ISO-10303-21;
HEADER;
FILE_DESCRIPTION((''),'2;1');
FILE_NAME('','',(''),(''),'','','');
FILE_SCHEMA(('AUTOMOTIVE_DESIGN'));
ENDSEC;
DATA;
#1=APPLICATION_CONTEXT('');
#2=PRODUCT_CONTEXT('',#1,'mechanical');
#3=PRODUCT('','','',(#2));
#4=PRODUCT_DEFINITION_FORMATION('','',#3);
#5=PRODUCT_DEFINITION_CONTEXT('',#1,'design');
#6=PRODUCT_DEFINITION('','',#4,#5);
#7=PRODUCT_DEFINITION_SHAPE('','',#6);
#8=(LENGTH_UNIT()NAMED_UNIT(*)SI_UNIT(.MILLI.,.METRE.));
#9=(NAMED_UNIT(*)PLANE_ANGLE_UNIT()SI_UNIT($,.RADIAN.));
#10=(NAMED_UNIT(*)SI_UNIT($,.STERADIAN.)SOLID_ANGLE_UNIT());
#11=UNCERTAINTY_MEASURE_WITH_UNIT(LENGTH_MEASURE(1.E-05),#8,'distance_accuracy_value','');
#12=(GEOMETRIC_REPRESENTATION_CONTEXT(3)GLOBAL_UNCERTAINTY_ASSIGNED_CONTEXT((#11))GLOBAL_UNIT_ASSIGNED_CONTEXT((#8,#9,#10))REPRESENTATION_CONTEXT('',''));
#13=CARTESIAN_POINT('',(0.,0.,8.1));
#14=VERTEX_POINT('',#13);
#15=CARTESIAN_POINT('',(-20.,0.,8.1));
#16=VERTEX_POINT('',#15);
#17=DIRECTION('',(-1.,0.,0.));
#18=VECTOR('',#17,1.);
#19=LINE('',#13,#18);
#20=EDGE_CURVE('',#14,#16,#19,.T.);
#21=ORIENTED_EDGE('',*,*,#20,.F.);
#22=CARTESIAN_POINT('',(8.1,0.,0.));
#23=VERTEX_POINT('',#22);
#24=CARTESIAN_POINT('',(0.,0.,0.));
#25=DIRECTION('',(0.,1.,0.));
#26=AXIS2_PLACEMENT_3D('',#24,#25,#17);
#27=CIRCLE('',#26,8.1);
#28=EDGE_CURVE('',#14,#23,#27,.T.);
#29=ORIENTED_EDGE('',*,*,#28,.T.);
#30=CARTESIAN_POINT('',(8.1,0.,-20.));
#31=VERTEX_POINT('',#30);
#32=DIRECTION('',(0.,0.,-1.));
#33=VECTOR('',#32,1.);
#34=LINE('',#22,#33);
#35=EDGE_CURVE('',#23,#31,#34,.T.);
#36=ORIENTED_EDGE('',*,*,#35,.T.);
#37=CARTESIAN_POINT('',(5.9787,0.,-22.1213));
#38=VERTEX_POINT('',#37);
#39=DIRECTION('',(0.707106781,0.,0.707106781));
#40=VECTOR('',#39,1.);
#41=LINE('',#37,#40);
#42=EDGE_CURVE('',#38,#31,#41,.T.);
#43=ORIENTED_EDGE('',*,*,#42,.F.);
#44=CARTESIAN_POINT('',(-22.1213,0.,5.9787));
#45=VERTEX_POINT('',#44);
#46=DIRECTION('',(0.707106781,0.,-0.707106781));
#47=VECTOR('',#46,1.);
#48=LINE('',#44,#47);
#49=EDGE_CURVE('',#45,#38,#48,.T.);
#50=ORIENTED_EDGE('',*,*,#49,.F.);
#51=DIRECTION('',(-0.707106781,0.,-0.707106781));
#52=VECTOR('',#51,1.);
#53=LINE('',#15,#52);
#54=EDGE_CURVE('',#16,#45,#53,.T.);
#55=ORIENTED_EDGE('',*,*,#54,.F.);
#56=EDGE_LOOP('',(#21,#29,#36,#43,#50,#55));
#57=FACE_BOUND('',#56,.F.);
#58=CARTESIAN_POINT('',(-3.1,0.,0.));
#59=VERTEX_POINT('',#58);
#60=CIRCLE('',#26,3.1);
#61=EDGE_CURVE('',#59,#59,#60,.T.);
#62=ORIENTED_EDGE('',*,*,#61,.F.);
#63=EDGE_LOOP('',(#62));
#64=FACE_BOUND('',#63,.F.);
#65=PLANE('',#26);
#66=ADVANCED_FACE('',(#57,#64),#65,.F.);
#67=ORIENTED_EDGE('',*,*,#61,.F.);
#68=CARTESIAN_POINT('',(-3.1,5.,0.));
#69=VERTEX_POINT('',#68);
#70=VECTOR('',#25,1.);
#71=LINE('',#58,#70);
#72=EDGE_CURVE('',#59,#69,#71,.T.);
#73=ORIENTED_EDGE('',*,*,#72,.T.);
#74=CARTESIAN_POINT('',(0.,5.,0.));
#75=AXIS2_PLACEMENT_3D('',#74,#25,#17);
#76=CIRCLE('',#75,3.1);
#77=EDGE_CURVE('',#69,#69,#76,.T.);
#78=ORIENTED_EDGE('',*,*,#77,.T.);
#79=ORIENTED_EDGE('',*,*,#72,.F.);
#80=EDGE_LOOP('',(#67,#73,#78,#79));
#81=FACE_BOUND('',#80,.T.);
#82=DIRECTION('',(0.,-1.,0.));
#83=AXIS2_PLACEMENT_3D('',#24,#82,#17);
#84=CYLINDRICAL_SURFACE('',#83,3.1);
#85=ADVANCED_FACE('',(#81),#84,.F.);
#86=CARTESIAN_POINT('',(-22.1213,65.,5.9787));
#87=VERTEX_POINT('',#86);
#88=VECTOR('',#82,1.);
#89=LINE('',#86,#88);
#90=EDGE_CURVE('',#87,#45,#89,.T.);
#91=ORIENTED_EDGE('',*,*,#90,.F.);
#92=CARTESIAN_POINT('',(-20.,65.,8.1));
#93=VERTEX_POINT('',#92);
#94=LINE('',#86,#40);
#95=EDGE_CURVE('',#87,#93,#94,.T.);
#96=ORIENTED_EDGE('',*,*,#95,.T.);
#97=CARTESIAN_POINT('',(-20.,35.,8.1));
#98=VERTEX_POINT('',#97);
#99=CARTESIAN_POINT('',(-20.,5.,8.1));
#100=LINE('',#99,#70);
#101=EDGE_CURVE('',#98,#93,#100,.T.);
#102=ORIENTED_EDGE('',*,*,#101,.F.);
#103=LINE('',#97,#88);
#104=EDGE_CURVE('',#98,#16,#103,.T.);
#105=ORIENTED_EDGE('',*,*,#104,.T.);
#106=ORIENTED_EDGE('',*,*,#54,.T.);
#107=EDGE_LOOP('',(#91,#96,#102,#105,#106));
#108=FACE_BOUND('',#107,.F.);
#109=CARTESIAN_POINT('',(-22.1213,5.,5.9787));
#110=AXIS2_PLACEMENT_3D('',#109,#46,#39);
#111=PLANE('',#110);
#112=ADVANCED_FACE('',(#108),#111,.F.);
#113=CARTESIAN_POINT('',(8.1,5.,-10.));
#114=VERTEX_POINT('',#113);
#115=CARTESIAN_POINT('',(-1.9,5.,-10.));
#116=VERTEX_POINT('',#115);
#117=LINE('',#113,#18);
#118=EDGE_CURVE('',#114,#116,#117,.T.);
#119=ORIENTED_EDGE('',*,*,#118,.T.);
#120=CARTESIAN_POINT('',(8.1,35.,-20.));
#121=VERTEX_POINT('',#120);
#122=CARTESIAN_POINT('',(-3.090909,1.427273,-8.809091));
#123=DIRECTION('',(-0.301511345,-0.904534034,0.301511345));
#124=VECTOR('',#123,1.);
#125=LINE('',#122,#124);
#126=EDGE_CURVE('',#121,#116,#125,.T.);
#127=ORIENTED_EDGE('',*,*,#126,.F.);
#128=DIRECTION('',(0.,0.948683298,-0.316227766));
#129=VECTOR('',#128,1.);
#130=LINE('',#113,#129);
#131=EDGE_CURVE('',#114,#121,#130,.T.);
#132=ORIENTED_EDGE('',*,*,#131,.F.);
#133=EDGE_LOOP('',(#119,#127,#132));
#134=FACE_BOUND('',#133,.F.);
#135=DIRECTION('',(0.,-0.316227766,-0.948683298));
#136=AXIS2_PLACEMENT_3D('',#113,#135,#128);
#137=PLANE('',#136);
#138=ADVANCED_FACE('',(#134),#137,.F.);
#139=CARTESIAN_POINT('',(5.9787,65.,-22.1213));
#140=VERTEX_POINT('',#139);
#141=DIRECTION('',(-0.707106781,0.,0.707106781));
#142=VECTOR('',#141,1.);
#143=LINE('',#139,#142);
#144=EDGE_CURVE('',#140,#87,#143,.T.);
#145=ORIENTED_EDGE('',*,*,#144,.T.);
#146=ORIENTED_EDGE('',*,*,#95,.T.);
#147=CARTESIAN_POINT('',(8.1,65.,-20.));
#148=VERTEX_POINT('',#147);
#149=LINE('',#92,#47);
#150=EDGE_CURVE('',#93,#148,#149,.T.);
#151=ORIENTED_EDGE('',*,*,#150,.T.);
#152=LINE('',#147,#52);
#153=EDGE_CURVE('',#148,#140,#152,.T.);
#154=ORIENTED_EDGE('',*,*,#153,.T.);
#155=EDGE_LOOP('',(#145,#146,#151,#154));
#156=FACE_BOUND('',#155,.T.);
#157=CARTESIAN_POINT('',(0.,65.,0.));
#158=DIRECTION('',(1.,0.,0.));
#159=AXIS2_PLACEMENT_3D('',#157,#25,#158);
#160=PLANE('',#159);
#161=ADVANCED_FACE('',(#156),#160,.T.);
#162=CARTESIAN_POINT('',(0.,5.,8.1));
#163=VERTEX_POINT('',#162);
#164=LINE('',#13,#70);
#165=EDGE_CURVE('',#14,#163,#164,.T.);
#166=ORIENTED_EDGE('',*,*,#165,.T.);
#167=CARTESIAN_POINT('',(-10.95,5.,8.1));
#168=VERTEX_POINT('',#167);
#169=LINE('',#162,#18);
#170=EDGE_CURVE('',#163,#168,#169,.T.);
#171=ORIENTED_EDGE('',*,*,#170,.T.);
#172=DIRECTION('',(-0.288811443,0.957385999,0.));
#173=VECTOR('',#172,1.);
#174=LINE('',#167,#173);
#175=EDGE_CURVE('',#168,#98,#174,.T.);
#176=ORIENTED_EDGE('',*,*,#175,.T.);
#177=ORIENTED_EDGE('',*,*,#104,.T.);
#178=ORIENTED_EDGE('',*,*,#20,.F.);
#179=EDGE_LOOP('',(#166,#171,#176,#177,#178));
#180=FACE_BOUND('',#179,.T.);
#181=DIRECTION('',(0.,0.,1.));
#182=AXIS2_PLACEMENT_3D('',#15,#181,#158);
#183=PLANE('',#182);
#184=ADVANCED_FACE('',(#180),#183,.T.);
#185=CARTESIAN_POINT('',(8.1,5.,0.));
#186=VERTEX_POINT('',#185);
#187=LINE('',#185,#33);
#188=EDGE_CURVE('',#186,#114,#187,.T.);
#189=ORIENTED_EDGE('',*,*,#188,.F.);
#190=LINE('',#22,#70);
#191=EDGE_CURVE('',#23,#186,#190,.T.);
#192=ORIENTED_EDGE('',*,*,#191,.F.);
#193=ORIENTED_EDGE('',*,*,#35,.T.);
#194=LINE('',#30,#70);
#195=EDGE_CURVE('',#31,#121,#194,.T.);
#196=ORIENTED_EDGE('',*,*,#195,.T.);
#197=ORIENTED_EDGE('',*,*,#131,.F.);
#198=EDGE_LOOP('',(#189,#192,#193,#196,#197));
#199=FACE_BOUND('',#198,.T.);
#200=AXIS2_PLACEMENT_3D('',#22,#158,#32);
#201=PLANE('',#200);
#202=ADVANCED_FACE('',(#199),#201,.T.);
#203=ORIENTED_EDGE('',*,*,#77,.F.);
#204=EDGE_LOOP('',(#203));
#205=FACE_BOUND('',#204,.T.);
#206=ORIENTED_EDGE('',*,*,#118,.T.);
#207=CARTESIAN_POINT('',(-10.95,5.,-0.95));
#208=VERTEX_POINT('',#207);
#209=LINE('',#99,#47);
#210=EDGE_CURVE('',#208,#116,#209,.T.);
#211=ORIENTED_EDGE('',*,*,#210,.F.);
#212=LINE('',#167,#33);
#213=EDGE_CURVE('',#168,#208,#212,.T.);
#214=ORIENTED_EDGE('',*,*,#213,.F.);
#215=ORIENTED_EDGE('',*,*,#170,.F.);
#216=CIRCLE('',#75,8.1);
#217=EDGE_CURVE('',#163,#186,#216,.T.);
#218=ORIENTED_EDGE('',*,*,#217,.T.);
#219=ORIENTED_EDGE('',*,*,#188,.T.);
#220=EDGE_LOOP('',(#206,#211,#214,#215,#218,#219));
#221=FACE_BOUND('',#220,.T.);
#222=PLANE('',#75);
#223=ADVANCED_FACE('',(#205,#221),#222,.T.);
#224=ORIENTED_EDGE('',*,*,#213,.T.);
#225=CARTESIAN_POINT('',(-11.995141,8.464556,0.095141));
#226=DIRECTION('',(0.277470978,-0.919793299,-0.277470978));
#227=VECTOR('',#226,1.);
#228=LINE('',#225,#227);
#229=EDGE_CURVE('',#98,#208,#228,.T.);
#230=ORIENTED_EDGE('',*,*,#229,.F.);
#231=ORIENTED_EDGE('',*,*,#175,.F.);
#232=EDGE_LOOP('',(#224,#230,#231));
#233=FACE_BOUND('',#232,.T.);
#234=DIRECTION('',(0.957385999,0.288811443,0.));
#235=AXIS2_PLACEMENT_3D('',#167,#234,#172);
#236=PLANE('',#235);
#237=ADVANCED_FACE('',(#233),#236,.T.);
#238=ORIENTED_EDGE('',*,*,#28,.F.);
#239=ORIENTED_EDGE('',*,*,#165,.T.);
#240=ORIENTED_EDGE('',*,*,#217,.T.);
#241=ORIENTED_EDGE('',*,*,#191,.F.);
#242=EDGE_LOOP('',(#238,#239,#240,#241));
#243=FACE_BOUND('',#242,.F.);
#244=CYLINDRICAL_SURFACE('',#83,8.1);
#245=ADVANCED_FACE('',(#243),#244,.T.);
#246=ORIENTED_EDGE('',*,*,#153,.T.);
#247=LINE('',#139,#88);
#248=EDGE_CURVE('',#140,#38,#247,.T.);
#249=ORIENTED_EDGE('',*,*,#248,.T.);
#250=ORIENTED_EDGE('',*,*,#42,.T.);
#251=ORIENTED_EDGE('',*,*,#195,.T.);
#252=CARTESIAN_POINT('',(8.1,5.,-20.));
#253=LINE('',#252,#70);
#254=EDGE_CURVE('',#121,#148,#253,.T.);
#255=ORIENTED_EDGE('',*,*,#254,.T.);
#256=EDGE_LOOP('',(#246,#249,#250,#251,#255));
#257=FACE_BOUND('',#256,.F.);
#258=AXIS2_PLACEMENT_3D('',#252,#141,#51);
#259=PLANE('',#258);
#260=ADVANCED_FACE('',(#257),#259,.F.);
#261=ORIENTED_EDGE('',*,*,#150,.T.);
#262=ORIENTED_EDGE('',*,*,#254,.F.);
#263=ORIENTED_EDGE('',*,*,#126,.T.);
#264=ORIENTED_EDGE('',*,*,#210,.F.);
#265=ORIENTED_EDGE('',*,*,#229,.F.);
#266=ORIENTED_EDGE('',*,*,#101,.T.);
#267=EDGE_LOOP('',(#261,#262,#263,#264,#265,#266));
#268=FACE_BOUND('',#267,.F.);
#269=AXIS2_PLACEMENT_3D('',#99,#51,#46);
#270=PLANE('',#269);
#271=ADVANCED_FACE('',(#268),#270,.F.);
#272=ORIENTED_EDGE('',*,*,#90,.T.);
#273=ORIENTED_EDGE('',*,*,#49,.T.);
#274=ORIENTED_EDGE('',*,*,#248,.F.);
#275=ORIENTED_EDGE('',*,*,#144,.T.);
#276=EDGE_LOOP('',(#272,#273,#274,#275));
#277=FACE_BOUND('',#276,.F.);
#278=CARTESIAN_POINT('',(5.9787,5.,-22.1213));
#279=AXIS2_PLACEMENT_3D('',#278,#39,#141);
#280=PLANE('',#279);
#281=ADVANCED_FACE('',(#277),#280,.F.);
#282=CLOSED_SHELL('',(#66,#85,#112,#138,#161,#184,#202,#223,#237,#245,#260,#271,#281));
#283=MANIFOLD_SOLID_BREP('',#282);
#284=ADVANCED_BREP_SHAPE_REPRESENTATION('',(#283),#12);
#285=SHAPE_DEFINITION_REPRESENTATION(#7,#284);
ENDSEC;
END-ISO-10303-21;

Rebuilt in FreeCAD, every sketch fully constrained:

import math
import FreeCAD as App
import Part
import Sketcher
Q = App.Units.Quantity

doc = App.newDocument("Part")
body = doc.addObject("PartDesign::Body", "Body")

# Sketch on XZ plane
sketch1 = body.newObject("Sketcher::SketchObject", "Sketch")
sketch1.AttachmentSupport = (doc.getObject("XZ_Plane"), [""])
sketch1.MapMode = "FlatFace"
sketch1.addGeometry([
    Part.ArcOfCircle(Part.Circle(App.Vector(0, 0, 0), App.Vector(0, 0, 1), 8.1), math.radians(0), math.radians(90)),  # 0
    Part.LineSegment(App.Vector(8.1, 0, 0), App.Vector(8.1, -20, 0)),  # 1
    Part.LineSegment(App.Vector(8.1, -20, 0), App.Vector(6, -22.1, 0)),  # 2
    Part.LineSegment(App.Vector(6, -22.1, 0), App.Vector(-22.1, 6, 0)),  # 3
    Part.LineSegment(App.Vector(-22.1, 6, 0), App.Vector(-20, 8.1, 0)),  # 4
    Part.LineSegment(App.Vector(-20, 8.1, 0), App.Vector(0, 8.1, 0)),  # 5
    Part.Circle(App.Vector(0, 0, 0), App.Vector(0, 0, 1), 3.1),  # 6
], False)
sketch1.addConstraint([
    Sketcher.Constraint("Tangent", 0, 1, 1, 1),
    Sketcher.Constraint("Coincident", 1, 2, 2, 1),
    Sketcher.Constraint("Coincident", 2, 2, 3, 1),
    Sketcher.Constraint("Coincident", 3, 2, 4, 1),
    Sketcher.Constraint("Coincident", 4, 2, 5, 1),
    Sketcher.Constraint("Tangent", 5, 2, 0, 2),
    Sketcher.Constraint("Vertical", 1),
    Sketcher.Constraint("Horizontal", 5),
    Sketcher.Constraint("Coincident", 0, 3, -1, 1),
    Sketcher.Constraint("Coincident", 6, 3, -1, 1),
    Sketcher.Constraint("Perpendicular", 2, 3),
    Sketcher.Constraint("Perpendicular", 3, 4),
    Sketcher.Constraint("Equal", 5, 1),
    Sketcher.Constraint("Equal", 2, 4),
    Sketcher.Constraint("Diameter", 6, 6.2),
    Sketcher.Constraint("DistanceX", 5, 1, 5, 2, 20.0),
    Sketcher.Constraint("Distance", 2, 3.0),
    Sketcher.Constraint("Radius", 0, 8.1),
])
pad1 = body.newObject("PartDesign::Pad", "Pad")
pad1.Profile = sketch1
pad1.Length = 5
pad1.Reversed = True

# Sketch on XZ plane
sketch2 = body.newObject("Sketcher::SketchObject", "Sketch001")
sketch2.AttachmentSupport = (doc.getObject("XZ_Plane"), [""])
sketch2.MapMode = "FlatFace"
sketch2.AttachmentOffset = App.Placement(App.Vector(0, 0, -5), App.Rotation())
sketch2.addGeometry([
    Part.LineSegment(App.Vector(6, -22.1, 0), App.Vector(-22.1, 6, 0)),
    Part.LineSegment(App.Vector(-22.1, 6, 0), App.Vector(-20, 8.1, 0)),
    Part.LineSegment(App.Vector(-20, 8.1, 0), App.Vector(8.1, -20, 0)),
    Part.LineSegment(App.Vector(8.1, -20, 0), App.Vector(6, -22.1, 0)),
], False)
sketch2.addConstraint([
    Sketcher.Constraint("Coincident", 0, 2, 1, 1),
    Sketcher.Constraint("Coincident", 1, 2, 2, 1),
    Sketcher.Constraint("Coincident", 2, 2, 3, 1),
    Sketcher.Constraint("Coincident", 3, 2, 0, 1),
    Sketcher.Constraint("Perpendicular", 0, 1),
    Sketcher.Constraint("Perpendicular", 1, 2),
    Sketcher.Constraint("Perpendicular", 2, 3),
    Sketcher.Constraint("Angle", 0, Q("135 deg")),
    Sketcher.Constraint("Distance", 1, 3.0),
    Sketcher.Constraint("DistanceX", 1, 2, -1, 1, 20.0),
    Sketcher.Constraint("DistanceY", 2, 2, -1, 1, 20.0),
    Sketcher.Constraint("DistanceY", -1, 1, 1, 2, 8.1),
])
pad2 = body.newObject("PartDesign::Pad", "Pad001")
pad2.Profile = sketch2
pad2.Length = 60
pad2.Reversed = True

# Sketch on YZ plane
sketch3 = body.newObject("Sketcher::SketchObject", "Sketch002")
sketch3.AttachmentSupport = (doc.getObject("YZ_Plane"), [""])
sketch3.MapMode = "FlatFace"
sketch3.AttachmentOffset = App.Placement(App.Vector(0, 0, 8.1), App.Rotation())
sketch3.addGeometry([
    Part.LineSegment(App.Vector(35, -20, 0), App.Vector(5, -10, 0)),
    Part.LineSegment(App.Vector(5, -10, 0), App.Vector(5, -20, 0)),
    Part.LineSegment(App.Vector(5, -20, 0), App.Vector(35, -20, 0)),
], False)
sketch3.addConstraint([
    Sketcher.Constraint("Coincident", 0, 2, 1, 1),
    Sketcher.Constraint("Coincident", 1, 2, 2, 1),
    Sketcher.Constraint("Coincident", 2, 2, 0, 1),
    Sketcher.Constraint("Vertical", 1),
    Sketcher.Constraint("Horizontal", 2),
    Sketcher.Constraint("DistanceX", 2, 1, 2, 2, 30.0),
    Sketcher.Constraint("DistanceY", 1, 2, 1, 1, 10.0),
    Sketcher.Constraint("DistanceX", -1, 1, 0, 2, 5.0),
    Sketcher.Constraint("DistanceY", 0, 2, -1, 1, 10.0),
])
pad3 = body.newObject("PartDesign::Pad", "Pad002")
pad3.Profile = sketch3
pad3.Length = 10
pad3.Reversed = True

# Sketch on XY plane
sketch4 = body.newObject("Sketcher::SketchObject", "Sketch003")
sketch4.AttachmentSupport = (doc.getObject("XY_Plane"), [""])
sketch4.MapMode = "FlatFace"
sketch4.AttachmentOffset = App.Placement(App.Vector(0, 0, 8.1), App.Rotation())
sketch4.addGeometry([
    Part.LineSegment(App.Vector(-20, 5, 0), App.Vector(-11, 5, 0)),
    Part.LineSegment(App.Vector(-11, 5, 0), App.Vector(-20, 35, 0)),
    Part.LineSegment(App.Vector(-20, 35, 0), App.Vector(-20, 5, 0)),
], False)
sketch4.addConstraint([
    Sketcher.Constraint("Coincident", 0, 2, 1, 1),
    Sketcher.Constraint("Coincident", 1, 2, 2, 1),
    Sketcher.Constraint("Coincident", 2, 2, 0, 1),
    Sketcher.Constraint("Horizontal", 0),
    Sketcher.Constraint("Vertical", 2),
    Sketcher.Constraint("DistanceY", 2, 2, 2, 1, 30.0),
    Sketcher.Constraint("DistanceY", -1, 1, 0, 2, 5.0),
    Sketcher.Constraint("DistanceX", 1, 2, -1, 1, 20.0),
    Sketcher.Constraint("DistanceX", 0, 1, 0, 2, 9.05),
])
pad4 = body.newObject("PartDesign::Pad", "Pad003")
pad4.Profile = sketch4
pad4.Length = 10
pad4.Reversed = True

# Sketch on an angled plane
sketch5 = body.newObject("Sketcher::SketchObject", "Sketch004")
sketch5.Placement = App.Placement(App.Vector(-22.1213, 0, 5.9787), App.Rotation(App.Vector(0.707106781, 0, 0.707106781), App.Vector(0, 0.999999999, 0), App.Vector(-0.707106781, 0, 0.707106781), "ZXY"))
sketch5.addGeometry([
    Part.LineSegment(App.Vector(0, 0, 0), App.Vector(0, 35, 0)),
    Part.LineSegment(App.Vector(0, 35, 0), App.Vector(-4.1, 35, 0)),
    Part.LineSegment(App.Vector(-4.1, 35, 0), App.Vector(-4.1, 0, 0)),
    Part.LineSegment(App.Vector(-4.1, 0, 0), App.Vector(0, 0, 0)),
], False)
sketch5.addConstraint([
    Sketcher.Constraint("Coincident", 0, 2, 1, 1),
    Sketcher.Constraint("Coincident", 1, 2, 2, 1),
    Sketcher.Constraint("Coincident", 2, 2, 3, 1),
    Sketcher.Constraint("Coincident", 3, 2, 0, 1),
    Sketcher.Constraint("Vertical", 0),
    Sketcher.Constraint("Horizontal", 1),
    Sketcher.Constraint("Vertical", 2),
    Sketcher.Constraint("Horizontal", 3),
    Sketcher.Constraint("Coincident", 3, 2, -1, 1),
    Sketcher.Constraint("DistanceY", 0, 1, 0, 2, 35.0),
    Sketcher.Constraint("DistanceX", 1, 2, 1, 1, 4.071),
])
pocket1 = body.newObject("PartDesign::Pocket", "Pocket")
pocket1.Profile = sketch5
pocket1.Type = "ThroughAll"

doc.recompute()
